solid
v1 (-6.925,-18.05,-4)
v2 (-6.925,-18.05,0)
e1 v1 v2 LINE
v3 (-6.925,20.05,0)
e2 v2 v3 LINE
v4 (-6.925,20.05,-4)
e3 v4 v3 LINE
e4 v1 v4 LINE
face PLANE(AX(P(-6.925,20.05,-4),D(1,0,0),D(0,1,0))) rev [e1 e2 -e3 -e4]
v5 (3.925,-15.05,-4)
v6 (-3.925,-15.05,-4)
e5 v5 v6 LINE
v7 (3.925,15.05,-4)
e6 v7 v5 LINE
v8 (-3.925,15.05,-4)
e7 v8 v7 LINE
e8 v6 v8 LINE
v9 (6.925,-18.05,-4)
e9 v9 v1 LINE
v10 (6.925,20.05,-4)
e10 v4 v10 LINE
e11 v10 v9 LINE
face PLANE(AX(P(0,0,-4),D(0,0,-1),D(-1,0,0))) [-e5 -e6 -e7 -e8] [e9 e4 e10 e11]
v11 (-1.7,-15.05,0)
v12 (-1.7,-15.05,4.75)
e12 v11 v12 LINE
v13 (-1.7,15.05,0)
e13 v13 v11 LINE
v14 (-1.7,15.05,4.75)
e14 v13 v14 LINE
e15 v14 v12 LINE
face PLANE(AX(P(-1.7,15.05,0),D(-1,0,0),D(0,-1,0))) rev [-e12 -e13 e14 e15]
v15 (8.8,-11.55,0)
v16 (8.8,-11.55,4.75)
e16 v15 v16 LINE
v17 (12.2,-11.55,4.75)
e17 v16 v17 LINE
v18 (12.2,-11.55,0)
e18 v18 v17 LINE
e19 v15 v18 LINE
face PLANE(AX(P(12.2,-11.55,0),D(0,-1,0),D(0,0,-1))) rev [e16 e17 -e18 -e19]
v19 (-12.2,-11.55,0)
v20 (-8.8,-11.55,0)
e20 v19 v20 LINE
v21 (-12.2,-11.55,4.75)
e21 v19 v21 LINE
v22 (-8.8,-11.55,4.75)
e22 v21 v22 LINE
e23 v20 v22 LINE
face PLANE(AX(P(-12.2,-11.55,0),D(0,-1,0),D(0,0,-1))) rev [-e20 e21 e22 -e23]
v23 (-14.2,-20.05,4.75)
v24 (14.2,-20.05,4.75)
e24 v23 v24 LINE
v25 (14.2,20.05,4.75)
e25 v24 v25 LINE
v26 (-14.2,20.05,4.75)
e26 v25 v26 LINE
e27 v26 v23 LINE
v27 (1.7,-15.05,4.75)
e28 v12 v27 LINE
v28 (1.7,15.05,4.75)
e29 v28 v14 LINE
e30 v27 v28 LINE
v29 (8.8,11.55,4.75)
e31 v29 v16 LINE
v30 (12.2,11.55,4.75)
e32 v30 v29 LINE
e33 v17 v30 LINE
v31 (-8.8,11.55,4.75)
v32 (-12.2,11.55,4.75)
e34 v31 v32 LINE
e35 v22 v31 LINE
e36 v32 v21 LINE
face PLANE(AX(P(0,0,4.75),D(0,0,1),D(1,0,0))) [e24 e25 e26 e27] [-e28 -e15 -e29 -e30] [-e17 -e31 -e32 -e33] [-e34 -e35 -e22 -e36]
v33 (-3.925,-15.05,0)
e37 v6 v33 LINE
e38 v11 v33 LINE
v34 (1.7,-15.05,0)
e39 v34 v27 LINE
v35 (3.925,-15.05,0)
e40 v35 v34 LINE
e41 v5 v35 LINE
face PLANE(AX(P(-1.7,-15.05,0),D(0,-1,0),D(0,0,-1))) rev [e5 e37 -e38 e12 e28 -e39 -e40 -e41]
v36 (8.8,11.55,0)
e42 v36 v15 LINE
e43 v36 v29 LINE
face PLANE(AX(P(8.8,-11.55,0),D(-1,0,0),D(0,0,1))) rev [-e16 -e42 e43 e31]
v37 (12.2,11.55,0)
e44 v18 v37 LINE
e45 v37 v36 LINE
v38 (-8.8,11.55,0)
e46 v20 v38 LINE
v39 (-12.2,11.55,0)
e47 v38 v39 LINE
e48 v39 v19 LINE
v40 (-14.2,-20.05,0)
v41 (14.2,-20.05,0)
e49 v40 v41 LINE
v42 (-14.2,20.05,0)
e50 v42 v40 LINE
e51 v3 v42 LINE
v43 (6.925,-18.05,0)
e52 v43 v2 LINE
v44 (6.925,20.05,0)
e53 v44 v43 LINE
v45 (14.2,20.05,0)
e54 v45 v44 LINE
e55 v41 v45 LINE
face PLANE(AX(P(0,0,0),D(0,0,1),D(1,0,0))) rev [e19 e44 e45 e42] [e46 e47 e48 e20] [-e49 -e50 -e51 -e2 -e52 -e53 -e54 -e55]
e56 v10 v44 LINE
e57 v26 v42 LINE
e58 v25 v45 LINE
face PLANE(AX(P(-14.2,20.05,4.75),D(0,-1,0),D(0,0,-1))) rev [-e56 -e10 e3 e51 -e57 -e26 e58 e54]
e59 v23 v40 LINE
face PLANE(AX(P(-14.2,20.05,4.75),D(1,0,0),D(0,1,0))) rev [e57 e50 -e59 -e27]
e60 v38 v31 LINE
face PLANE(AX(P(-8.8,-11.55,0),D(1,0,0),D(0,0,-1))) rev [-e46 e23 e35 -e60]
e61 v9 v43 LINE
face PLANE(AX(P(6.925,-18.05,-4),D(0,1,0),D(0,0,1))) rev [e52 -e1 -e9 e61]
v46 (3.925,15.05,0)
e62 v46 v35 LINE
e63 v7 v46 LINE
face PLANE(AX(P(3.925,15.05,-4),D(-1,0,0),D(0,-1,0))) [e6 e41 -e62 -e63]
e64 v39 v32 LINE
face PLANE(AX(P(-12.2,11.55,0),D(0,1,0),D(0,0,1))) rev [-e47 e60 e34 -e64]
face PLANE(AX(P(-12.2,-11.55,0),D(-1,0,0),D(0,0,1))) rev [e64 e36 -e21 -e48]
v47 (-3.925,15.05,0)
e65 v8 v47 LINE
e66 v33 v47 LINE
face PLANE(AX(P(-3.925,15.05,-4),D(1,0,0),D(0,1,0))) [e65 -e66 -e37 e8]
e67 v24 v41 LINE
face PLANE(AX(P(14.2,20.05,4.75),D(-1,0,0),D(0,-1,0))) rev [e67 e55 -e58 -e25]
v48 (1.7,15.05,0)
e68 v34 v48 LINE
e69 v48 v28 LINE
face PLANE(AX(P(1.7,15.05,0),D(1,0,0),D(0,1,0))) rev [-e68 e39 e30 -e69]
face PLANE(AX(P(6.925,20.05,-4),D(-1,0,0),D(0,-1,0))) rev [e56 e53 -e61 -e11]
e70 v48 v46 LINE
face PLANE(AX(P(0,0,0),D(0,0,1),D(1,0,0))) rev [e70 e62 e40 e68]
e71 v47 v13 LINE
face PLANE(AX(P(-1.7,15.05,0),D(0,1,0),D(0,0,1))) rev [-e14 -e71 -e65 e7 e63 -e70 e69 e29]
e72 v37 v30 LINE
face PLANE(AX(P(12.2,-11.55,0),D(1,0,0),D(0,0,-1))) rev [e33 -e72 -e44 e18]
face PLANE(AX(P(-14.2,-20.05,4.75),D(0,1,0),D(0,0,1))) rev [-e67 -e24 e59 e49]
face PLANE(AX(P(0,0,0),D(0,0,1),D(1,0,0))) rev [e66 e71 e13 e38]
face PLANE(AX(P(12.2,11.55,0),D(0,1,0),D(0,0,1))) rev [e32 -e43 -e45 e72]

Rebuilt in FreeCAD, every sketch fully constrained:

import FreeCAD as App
import Part
import Sketcher

V = App.Vector
Q = App.Units.Quantity

doc = App.newDocument("Part")
params = doc.addObject("Spreadsheet::Sheet", "Params")
for row, (alias, value) in enumerate([
    ("sketch1_width", "28.4 mm"),
    ("sketch1_height", "40.1 mm"),
    ("pad1_length", "4.75 mm"),
    ("sketch2_width", "3.4 mm"),
    ("sketch2_height", "23.1 mm"),
    ("sketch2_height2", "30.1 mm"),
    ("sketch3_height", "38.1 mm"),
    ("sketch3_height2", "30.1 mm"),
    ("sketch3_width", "13.85 mm"),
    ("pad2_length", "4 mm"),
], start=1):
    params.set(f"A{row}", alias)
    params.set(f"B{row}", "=" + value)
    params.setAlias(f"B{row}", alias)

body = doc.addObject("PartDesign::Body", "Body")

sketch1 = body.newObject("Sketcher::SketchObject", "Sketch")
sketch1.AttachmentSupport = (doc.getObject("XY_Plane"), [""])
sketch1.MapMode = "FlatFace"
sketch1.addGeometry([
    Part.LineSegment(V(-14.2, 20.05, 0), V(-14.2, -20.05, 0)),
    Part.LineSegment(V(-14.2, -20.05, 0), V(14.2, -20.05, 0)),
    Part.LineSegment(V(14.2, -20.05, 0), V(14.2, 20.05, 0)),
    Part.LineSegment(V(14.2, 20.05, 0), V(-14.2, 20.05, 0)),
], False)
sketch1.addConstraint([
    Sketcher.Constraint("Coincident", 0, 2, 1, 1),
    Sketcher.Constraint("Coincident", 1, 2, 2, 1),
    Sketcher.Constraint("Coincident", 2, 2, 3, 1),
    Sketcher.Constraint("Coincident", 3, 2, 0, 1),
    Sketcher.Constraint("Vertical", 0),
    Sketcher.Constraint("Horizontal", 1),
    Sketcher.Constraint("Vertical", 2),
    Sketcher.Constraint("Horizontal", 3),
    Sketcher.Constraint("Symmetric", 0, 2, 2, 2, -1, 1),
    Sketcher.Constraint("DistanceX", 1, 1, 1, 2, Q("28.4 mm")),
    Sketcher.Constraint("DistanceY", 0, 2, 0, 1, Q("40.1 mm")),
])
sketch1.setExpression("Constraints[9]", "Params.sketch1_width")
sketch1.setExpression("Constraints[10]", "Params.sketch1_height")
pad1 = body.newObject("PartDesign::Pad", "Pad")
pad1.Profile = sketch1
pad1.setExpression("Length", "Params.pad1_length")

sketch2 = body.newObject("Sketcher::SketchObject", "Sketch001")
sketch2.AttachmentSupport = (doc.getObject("XY_Plane"), [""])
sketch2.MapMode = "FlatFace"
sketch2.AttachmentOffset = App.Placement(V(0, 0, 4.75), App.Rotation())
sketch2.addGeometry([
    Part.LineSegment(V(8.8, 11.55, 0), V(8.8, -11.55, 0)),
    Part.LineSegment(V(8.8, -11.55, 0), V(12.2, -11.55, 0)),
    Part.LineSegment(V(12.2, -11.55, 0), V(12.2, 11.55, 0)),
    Part.LineSegment(V(12.2, 11.55, 0), V(8.8, 11.55, 0)),
    Part.LineSegment(V(-12.2, 11.55, 0), V(-12.2, -11.55, 0)),
    Part.LineSegment(V(-12.2, -11.55, 0), V(-8.8, -11.55, 0)),
    Part.LineSegment(V(-8.8, -11.55, 0), V(-8.8, 11.55, 0)),
    Part.LineSegment(V(-8.8, 11.55, 0), V(-12.2, 11.55, 0)),
    Part.LineSegment(V(-1.7, 15.05, 0), V(-1.7, -15.05, 0)),
    Part.LineSegment(V(-1.7, -15.05, 0), V(1.7, -15.05, 0)),
    Part.LineSegment(V(1.7, -15.05, 0), V(1.7, 15.05, 0)),
    Part.LineSegment(V(1.7, 15.05, 0), V(-1.7, 15.05, 0)),
], False)
sketch2.addConstraint([
    Sketcher.Constraint("Coincident", 0, 2, 1, 1),
    Sketcher.Constraint("Coincident", 1, 2, 2, 1),
    Sketcher.Constraint("Coincident", 2, 2, 3, 1),
    Sketcher.Constraint("Coincident", 3, 2, 0, 1),
    Sketcher.Constraint("Coincident", 4, 2, 5, 1),
    Sketcher.Constraint("Coincident", 5, 2, 6, 1),
    Sketcher.Constraint("Coincident", 6, 2, 7, 1),
    Sketcher.Constraint("Coincident", 7, 2, 4, 1),
    Sketcher.Constraint("Coincident", 8, 2, 9, 1),
    Sketcher.Constraint("Coincident", 9, 2, 10, 1),
    Sketcher.Constraint("Coincident", 10, 2, 11, 1),
    Sketcher.Constraint("Coincident", 11, 2, 8, 1),
    Sketcher.Constraint("Vertical", 0),
    Sketcher.Constraint("Horizontal", 1),
    Sketcher.Constraint("Vertical", 2),
    Sketcher.Constraint("Horizontal", 3),
    Sketcher.Constraint("Vertical", 4),
    Sketcher.Constraint("Horizontal", 5),
    Sketcher.Constraint("Vertical", 6),
    Sketcher.Constraint("Horizontal", 7),
    Sketcher.Constraint("Vertical", 8),
    Sketcher.Constraint("Horizontal", 9),
    Sketcher.Constraint("Vertical", 10),
    Sketcher.Constraint("Horizontal", 11),
    Sketcher.Constraint("Symmetric", 2, 2, 4, 2, -1, 1),
    Sketcher.Constraint("Symmetric", 0, 2, 6, 2, -1, 1),
    Sketcher.Constraint("Symmetric", 8, 2, 10, 2, -1, 1),
    Sketcher.Constraint("Horizontal", 1, 2, 4, 2),
    Sketcher.Constraint("Equal", 7, 9),
    Sketcher.Constraint("DistanceX", 1, 1, 1, 2, Q("3.4 mm")),
    Sketcher.Constraint("DistanceY", 0, 2, 0, 1, Q("23.1 mm")),
    Sketcher.Constraint("DistanceY", 8, 2, 8, 1, Q("30.1 mm")),
    Sketcher.Constraint("DistanceX", 4, 2, 0, 2, Q("21 mm")),
])
sketch2.setExpression("Constraints[29]", "Params.sketch2_width")
sketch2.setExpression("Constraints[30]", "Params.sketch2_height")
sketch2.setExpression("Constraints[31]", "Params.sketch2_height2")
pocket1 = body.newObject("PartDesign::Pocket", "Pocket")
pocket1.Profile = sketch2
pocket1.Type = "ThroughAll"

sketch3 = body.newObject("Sketcher::SketchObject", "Sketch002")
sketch3.AttachmentSupport = (doc.getObject("XY_Plane"), [""])
sketch3.MapMode = "FlatFace"
sketch3.addGeometry([
    Part.LineSegment(V(6.925, 20.05, 0), V(6.925, -18.05, 0)),
    Part.LineSegment(V(6.925, -18.05, 0), V(-6.925, -18.05, 0)),
    Part.LineSegment(V(-6.925, -18.05, 0), V(-6.925, 20.05, 0)),
    Part.LineSegment(V(-6.925, 20.05, 0), V(6.925, 20.05, 0)),
    Part.LineSegment(V(-3.925, -15.05, 0), V(3.925, -15.05, 0)),
    Part.LineSegment(V(3.925, -15.05, 0), V(3.925, 15.05, 0)),
    Part.LineSegment(V(3.925, 15.05, 0), V(-3.925, 15.05, 0)),
    Part.LineSegment(V(-3.925, 15.05, 0), V(-3.925, -15.05, 0)),
], False)
sketch3.addConstraint([
    Sketcher.Constraint("Coincident", 0, 2, 1, 1),
    Sketcher.Constraint("Coincident", 1, 2, 2, 1),
    Sketcher.Constraint("Coincident", 2, 2, 3, 1),
    Sketcher.Constraint("Coincident", 3, 2, 0, 1),
    Sketcher.Constraint("Coincident", 4, 2, 5, 1),
    Sketcher.Constraint("Coincident", 5, 2, 6, 1),
    Sketcher.Constraint("Coincident", 6, 2, 7, 1),
    Sketcher.Constraint("Coincident", 7, 2, 4, 1),
    Sketcher.Constraint("Vertical", 0),
    Sketcher.Constraint("Horizontal", 1),
    Sketcher.Constraint("Vertical", 2),
    Sketcher.Constraint("Horizontal", 3),
    Sketcher.Constraint("Horizontal", 4),
    Sketcher.Constraint("Vertical", 5),
    Sketcher.Constraint("Horizontal", 6),
    Sketcher.Constraint("Vertical", 7),
    Sketcher.Constraint("Symmetric", 4, 2, 6, 2, -1, 1),
    Sketcher.Constraint("DistanceY", 0, 2, 0, 1, Q("38.1 mm")),
    Sketcher.Constraint("DistanceY", 5, 1, 5, 2, Q("30.1 mm")),
    Sketcher.Constraint("DistanceX", 4, 2, 0, 2, Q("3 mm")),
    Sketcher.Constraint("DistanceY", 0, 2, 4, 2, Q("3 mm")),
    Sketcher.Constraint("DistanceX", 2, 2, 6, 2, Q("3 mm")),
    Sketcher.Constraint("DistanceX", 1, 2, 1, 1, Q("13.85 mm")),
])
sketch3.setExpression("Constraints[17]", "Params.sketch3_height")
sketch3.setExpression("Constraints[18]", "Params.sketch3_height2")
sketch3.setExpression("Constraints[22]", "Params.sketch3_width")
pad2 = body.newObject("PartDesign::Pad", "Pad001")
pad2.Profile = sketch3
pad2.setExpression("Length", "Params.pad2_length")
pad2.Reversed = True

doc.recompute()
